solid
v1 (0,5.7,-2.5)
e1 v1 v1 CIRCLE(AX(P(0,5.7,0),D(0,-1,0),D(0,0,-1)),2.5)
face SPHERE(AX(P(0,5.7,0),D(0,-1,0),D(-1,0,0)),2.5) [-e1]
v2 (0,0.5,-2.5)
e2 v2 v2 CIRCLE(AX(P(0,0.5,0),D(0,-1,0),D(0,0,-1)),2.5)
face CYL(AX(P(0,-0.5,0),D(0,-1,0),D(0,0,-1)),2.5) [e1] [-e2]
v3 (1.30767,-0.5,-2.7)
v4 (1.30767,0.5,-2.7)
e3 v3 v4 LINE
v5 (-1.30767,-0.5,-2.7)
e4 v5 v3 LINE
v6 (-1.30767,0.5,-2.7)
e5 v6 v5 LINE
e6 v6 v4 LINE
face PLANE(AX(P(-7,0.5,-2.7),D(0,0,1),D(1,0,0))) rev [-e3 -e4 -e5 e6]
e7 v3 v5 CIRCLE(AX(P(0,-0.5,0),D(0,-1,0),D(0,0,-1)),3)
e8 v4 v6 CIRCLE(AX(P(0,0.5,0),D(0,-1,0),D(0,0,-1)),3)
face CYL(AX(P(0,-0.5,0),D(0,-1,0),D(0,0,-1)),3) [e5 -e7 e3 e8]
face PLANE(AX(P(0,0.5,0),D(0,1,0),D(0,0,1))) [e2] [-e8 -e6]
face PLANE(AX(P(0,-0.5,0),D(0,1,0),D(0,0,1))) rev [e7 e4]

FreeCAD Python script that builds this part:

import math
import FreeCAD as App
import Part
import Sketcher

V = App.Vector
Q = App.Units.Quantity


def add_polygon(sketch, points):
    """Adds a closed chain of lines whose ends are joined by coincident constraints."""
    first, n = sketch.GeometryCount, len(points)
    for a, b in zip(points, points[1:] + points[:1]):
        sketch.addGeometry(Part.LineSegment(App.Vector(*a, 0), App.Vector(*b, 0)), False)
    for i in range(n):
        sketch.addConstraint(Sketcher.Constraint("Coincident", first + i, 2, first + (i + 1) % n, 1))

doc = App.newDocument("Part")
body = doc.addObject("PartDesign::Body", "Body")

# Sketch on XY plane
sketch1 = doc.addObject("Sketcher::SketchObject", "Sketch")
body.addObject(sketch1)
sketch1.AttachmentSupport = (doc.XY_Plane, [""])
sketch1.MapMode = "FlatFace"
sketch1.addGeometry(Part.LineSegment(V(-3, -0.5, 0), V(0, -0.5, 0)), False)
sketch1.addGeometry(Part.LineSegment(V(0, -0.5, 0), V(0, 8.2, 0)), False)
sketch1.addGeometry(Part.ArcOfCircle(Part.Circle(V(0, 5.7, 0), V(0, 0, 1), 2.5), math.radians(90), math.radians(180)), False)
sketch1.addGeometry(Part.LineSegment(V(-2.5, 5.7, 0), V(-2.5, 0.5, 0)), False)
sketch1.addGeometry(Part.LineSegment(V(-2.5, 0.5, 0), V(-3, 0.5, 0)), False)
sketch1.addGeometry(Part.LineSegment(V(-3, 0.5, 0), V(-3, -0.5, 0)), False)
sketch1.addConstraint(Sketcher.Constraint("Coincident", 0, 2, 1, 1))
sketch1.addConstraint(Sketcher.Constraint("Coincident", 1, 2, 2, 1))
sketch1.addConstraint(Sketcher.Constraint("Tangent", 2, 2, 3, 1))
sketch1.addConstraint(Sketcher.Constraint("Coincident", 3, 2, 4, 1))
sketch1.addConstraint(Sketcher.Constraint("Coincident", 4, 2, 5, 1))
sketch1.addConstraint(Sketcher.Constraint("Coincident", 5, 2, 0, 1))
sketch1.addConstraint(Sketcher.Constraint("Horizontal", 0))
sketch1.addConstraint(Sketcher.Constraint("Vertical", 1))
sketch1.addConstraint(Sketcher.Constraint("Vertical", 3))
sketch1.addConstraint(Sketcher.Constraint("Horizontal", 4))
sketch1.addConstraint(Sketcher.Constraint("Vertical", 5))
sketch1.addConstraint(Sketcher.Constraint("PointOnObject", 2, 3, -2))
sketch1.addConstraint(Sketcher.Constraint("PointOnObject", 0, 2, -2))
sketch1.addConstraint(Sketcher.Constraint("Radius", 2, Q("2.5 mm")))
sketch1.addConstraint(Sketcher.Constraint("DistanceX", 0, 1, 0, 2, Q("3 mm")))
sketch1.addConstraint(Sketcher.Constraint("DistanceY", 5, 2, 5, 1, Q("1 mm")))
sketch1.addConstraint(Sketcher.Constraint("DistanceY", 1, 1, 1, 2, Q("8.7 mm")))
sketch1.addConstraint(Sketcher.Constraint("DistanceY", -1, 1, 2, 3, Q("5.7 mm")))
revolution = doc.addObject("PartDesign::Revolution", "Revolution")
body.addObject(revolution)
revolution.Profile = sketch1
revolution.ReferenceAxis = (sketch1, ["V_Axis"])
revolution.Angle = 360

# Sketch on YZ plane
sketch2 = doc.addObject("Sketcher::SketchObject", "Sketch001")
body.addObject(sketch2)
sketch2.AttachmentSupport = (doc.YZ_Plane, [""])
sketch2.MapMode = "FlatFace"
sketch2.AttachmentOffset = App.Placement(V(0, 0, 3), App.Rotation())
add_polygon(sketch2, [(0.5, -2.7), (-0.5, -2.7), (-0.5, -3), (0.5, -3)])  # lines 0-3
sketch2.addConstraint(Sketcher.Constraint("Horizontal", 0))
sketch2.addConstraint(Sketcher.Constraint("Vertical", 1))
sketch2.addConstraint(Sketcher.Constraint("Horizontal", 2))
sketch2.addConstraint(Sketcher.Constraint("Vertical", 3))
sketch2.addConstraint(Sketcher.Constraint("DistanceX", 0, 2, 0, 1, Q("1 mm")))
sketch2.addConstraint(Sketcher.Constraint("DistanceY", 1, 2, 1, 1, Q("0.3 mm")))
sketch2.addConstraint(Sketcher.Constraint("DistanceY", 1, 2, -1, 1, Q("3 mm")))
sketch2.addConstraint(Sketcher.Constraint("DistanceX", 0, 2, -1, 1, Q("0.5 mm")))
pocket1 = doc.addObject("PartDesign::Pocket", "Pocket")
body.addObject(pocket1)
pocket1.Profile = sketch2
pocket1.Length = 10

doc.recompute()
